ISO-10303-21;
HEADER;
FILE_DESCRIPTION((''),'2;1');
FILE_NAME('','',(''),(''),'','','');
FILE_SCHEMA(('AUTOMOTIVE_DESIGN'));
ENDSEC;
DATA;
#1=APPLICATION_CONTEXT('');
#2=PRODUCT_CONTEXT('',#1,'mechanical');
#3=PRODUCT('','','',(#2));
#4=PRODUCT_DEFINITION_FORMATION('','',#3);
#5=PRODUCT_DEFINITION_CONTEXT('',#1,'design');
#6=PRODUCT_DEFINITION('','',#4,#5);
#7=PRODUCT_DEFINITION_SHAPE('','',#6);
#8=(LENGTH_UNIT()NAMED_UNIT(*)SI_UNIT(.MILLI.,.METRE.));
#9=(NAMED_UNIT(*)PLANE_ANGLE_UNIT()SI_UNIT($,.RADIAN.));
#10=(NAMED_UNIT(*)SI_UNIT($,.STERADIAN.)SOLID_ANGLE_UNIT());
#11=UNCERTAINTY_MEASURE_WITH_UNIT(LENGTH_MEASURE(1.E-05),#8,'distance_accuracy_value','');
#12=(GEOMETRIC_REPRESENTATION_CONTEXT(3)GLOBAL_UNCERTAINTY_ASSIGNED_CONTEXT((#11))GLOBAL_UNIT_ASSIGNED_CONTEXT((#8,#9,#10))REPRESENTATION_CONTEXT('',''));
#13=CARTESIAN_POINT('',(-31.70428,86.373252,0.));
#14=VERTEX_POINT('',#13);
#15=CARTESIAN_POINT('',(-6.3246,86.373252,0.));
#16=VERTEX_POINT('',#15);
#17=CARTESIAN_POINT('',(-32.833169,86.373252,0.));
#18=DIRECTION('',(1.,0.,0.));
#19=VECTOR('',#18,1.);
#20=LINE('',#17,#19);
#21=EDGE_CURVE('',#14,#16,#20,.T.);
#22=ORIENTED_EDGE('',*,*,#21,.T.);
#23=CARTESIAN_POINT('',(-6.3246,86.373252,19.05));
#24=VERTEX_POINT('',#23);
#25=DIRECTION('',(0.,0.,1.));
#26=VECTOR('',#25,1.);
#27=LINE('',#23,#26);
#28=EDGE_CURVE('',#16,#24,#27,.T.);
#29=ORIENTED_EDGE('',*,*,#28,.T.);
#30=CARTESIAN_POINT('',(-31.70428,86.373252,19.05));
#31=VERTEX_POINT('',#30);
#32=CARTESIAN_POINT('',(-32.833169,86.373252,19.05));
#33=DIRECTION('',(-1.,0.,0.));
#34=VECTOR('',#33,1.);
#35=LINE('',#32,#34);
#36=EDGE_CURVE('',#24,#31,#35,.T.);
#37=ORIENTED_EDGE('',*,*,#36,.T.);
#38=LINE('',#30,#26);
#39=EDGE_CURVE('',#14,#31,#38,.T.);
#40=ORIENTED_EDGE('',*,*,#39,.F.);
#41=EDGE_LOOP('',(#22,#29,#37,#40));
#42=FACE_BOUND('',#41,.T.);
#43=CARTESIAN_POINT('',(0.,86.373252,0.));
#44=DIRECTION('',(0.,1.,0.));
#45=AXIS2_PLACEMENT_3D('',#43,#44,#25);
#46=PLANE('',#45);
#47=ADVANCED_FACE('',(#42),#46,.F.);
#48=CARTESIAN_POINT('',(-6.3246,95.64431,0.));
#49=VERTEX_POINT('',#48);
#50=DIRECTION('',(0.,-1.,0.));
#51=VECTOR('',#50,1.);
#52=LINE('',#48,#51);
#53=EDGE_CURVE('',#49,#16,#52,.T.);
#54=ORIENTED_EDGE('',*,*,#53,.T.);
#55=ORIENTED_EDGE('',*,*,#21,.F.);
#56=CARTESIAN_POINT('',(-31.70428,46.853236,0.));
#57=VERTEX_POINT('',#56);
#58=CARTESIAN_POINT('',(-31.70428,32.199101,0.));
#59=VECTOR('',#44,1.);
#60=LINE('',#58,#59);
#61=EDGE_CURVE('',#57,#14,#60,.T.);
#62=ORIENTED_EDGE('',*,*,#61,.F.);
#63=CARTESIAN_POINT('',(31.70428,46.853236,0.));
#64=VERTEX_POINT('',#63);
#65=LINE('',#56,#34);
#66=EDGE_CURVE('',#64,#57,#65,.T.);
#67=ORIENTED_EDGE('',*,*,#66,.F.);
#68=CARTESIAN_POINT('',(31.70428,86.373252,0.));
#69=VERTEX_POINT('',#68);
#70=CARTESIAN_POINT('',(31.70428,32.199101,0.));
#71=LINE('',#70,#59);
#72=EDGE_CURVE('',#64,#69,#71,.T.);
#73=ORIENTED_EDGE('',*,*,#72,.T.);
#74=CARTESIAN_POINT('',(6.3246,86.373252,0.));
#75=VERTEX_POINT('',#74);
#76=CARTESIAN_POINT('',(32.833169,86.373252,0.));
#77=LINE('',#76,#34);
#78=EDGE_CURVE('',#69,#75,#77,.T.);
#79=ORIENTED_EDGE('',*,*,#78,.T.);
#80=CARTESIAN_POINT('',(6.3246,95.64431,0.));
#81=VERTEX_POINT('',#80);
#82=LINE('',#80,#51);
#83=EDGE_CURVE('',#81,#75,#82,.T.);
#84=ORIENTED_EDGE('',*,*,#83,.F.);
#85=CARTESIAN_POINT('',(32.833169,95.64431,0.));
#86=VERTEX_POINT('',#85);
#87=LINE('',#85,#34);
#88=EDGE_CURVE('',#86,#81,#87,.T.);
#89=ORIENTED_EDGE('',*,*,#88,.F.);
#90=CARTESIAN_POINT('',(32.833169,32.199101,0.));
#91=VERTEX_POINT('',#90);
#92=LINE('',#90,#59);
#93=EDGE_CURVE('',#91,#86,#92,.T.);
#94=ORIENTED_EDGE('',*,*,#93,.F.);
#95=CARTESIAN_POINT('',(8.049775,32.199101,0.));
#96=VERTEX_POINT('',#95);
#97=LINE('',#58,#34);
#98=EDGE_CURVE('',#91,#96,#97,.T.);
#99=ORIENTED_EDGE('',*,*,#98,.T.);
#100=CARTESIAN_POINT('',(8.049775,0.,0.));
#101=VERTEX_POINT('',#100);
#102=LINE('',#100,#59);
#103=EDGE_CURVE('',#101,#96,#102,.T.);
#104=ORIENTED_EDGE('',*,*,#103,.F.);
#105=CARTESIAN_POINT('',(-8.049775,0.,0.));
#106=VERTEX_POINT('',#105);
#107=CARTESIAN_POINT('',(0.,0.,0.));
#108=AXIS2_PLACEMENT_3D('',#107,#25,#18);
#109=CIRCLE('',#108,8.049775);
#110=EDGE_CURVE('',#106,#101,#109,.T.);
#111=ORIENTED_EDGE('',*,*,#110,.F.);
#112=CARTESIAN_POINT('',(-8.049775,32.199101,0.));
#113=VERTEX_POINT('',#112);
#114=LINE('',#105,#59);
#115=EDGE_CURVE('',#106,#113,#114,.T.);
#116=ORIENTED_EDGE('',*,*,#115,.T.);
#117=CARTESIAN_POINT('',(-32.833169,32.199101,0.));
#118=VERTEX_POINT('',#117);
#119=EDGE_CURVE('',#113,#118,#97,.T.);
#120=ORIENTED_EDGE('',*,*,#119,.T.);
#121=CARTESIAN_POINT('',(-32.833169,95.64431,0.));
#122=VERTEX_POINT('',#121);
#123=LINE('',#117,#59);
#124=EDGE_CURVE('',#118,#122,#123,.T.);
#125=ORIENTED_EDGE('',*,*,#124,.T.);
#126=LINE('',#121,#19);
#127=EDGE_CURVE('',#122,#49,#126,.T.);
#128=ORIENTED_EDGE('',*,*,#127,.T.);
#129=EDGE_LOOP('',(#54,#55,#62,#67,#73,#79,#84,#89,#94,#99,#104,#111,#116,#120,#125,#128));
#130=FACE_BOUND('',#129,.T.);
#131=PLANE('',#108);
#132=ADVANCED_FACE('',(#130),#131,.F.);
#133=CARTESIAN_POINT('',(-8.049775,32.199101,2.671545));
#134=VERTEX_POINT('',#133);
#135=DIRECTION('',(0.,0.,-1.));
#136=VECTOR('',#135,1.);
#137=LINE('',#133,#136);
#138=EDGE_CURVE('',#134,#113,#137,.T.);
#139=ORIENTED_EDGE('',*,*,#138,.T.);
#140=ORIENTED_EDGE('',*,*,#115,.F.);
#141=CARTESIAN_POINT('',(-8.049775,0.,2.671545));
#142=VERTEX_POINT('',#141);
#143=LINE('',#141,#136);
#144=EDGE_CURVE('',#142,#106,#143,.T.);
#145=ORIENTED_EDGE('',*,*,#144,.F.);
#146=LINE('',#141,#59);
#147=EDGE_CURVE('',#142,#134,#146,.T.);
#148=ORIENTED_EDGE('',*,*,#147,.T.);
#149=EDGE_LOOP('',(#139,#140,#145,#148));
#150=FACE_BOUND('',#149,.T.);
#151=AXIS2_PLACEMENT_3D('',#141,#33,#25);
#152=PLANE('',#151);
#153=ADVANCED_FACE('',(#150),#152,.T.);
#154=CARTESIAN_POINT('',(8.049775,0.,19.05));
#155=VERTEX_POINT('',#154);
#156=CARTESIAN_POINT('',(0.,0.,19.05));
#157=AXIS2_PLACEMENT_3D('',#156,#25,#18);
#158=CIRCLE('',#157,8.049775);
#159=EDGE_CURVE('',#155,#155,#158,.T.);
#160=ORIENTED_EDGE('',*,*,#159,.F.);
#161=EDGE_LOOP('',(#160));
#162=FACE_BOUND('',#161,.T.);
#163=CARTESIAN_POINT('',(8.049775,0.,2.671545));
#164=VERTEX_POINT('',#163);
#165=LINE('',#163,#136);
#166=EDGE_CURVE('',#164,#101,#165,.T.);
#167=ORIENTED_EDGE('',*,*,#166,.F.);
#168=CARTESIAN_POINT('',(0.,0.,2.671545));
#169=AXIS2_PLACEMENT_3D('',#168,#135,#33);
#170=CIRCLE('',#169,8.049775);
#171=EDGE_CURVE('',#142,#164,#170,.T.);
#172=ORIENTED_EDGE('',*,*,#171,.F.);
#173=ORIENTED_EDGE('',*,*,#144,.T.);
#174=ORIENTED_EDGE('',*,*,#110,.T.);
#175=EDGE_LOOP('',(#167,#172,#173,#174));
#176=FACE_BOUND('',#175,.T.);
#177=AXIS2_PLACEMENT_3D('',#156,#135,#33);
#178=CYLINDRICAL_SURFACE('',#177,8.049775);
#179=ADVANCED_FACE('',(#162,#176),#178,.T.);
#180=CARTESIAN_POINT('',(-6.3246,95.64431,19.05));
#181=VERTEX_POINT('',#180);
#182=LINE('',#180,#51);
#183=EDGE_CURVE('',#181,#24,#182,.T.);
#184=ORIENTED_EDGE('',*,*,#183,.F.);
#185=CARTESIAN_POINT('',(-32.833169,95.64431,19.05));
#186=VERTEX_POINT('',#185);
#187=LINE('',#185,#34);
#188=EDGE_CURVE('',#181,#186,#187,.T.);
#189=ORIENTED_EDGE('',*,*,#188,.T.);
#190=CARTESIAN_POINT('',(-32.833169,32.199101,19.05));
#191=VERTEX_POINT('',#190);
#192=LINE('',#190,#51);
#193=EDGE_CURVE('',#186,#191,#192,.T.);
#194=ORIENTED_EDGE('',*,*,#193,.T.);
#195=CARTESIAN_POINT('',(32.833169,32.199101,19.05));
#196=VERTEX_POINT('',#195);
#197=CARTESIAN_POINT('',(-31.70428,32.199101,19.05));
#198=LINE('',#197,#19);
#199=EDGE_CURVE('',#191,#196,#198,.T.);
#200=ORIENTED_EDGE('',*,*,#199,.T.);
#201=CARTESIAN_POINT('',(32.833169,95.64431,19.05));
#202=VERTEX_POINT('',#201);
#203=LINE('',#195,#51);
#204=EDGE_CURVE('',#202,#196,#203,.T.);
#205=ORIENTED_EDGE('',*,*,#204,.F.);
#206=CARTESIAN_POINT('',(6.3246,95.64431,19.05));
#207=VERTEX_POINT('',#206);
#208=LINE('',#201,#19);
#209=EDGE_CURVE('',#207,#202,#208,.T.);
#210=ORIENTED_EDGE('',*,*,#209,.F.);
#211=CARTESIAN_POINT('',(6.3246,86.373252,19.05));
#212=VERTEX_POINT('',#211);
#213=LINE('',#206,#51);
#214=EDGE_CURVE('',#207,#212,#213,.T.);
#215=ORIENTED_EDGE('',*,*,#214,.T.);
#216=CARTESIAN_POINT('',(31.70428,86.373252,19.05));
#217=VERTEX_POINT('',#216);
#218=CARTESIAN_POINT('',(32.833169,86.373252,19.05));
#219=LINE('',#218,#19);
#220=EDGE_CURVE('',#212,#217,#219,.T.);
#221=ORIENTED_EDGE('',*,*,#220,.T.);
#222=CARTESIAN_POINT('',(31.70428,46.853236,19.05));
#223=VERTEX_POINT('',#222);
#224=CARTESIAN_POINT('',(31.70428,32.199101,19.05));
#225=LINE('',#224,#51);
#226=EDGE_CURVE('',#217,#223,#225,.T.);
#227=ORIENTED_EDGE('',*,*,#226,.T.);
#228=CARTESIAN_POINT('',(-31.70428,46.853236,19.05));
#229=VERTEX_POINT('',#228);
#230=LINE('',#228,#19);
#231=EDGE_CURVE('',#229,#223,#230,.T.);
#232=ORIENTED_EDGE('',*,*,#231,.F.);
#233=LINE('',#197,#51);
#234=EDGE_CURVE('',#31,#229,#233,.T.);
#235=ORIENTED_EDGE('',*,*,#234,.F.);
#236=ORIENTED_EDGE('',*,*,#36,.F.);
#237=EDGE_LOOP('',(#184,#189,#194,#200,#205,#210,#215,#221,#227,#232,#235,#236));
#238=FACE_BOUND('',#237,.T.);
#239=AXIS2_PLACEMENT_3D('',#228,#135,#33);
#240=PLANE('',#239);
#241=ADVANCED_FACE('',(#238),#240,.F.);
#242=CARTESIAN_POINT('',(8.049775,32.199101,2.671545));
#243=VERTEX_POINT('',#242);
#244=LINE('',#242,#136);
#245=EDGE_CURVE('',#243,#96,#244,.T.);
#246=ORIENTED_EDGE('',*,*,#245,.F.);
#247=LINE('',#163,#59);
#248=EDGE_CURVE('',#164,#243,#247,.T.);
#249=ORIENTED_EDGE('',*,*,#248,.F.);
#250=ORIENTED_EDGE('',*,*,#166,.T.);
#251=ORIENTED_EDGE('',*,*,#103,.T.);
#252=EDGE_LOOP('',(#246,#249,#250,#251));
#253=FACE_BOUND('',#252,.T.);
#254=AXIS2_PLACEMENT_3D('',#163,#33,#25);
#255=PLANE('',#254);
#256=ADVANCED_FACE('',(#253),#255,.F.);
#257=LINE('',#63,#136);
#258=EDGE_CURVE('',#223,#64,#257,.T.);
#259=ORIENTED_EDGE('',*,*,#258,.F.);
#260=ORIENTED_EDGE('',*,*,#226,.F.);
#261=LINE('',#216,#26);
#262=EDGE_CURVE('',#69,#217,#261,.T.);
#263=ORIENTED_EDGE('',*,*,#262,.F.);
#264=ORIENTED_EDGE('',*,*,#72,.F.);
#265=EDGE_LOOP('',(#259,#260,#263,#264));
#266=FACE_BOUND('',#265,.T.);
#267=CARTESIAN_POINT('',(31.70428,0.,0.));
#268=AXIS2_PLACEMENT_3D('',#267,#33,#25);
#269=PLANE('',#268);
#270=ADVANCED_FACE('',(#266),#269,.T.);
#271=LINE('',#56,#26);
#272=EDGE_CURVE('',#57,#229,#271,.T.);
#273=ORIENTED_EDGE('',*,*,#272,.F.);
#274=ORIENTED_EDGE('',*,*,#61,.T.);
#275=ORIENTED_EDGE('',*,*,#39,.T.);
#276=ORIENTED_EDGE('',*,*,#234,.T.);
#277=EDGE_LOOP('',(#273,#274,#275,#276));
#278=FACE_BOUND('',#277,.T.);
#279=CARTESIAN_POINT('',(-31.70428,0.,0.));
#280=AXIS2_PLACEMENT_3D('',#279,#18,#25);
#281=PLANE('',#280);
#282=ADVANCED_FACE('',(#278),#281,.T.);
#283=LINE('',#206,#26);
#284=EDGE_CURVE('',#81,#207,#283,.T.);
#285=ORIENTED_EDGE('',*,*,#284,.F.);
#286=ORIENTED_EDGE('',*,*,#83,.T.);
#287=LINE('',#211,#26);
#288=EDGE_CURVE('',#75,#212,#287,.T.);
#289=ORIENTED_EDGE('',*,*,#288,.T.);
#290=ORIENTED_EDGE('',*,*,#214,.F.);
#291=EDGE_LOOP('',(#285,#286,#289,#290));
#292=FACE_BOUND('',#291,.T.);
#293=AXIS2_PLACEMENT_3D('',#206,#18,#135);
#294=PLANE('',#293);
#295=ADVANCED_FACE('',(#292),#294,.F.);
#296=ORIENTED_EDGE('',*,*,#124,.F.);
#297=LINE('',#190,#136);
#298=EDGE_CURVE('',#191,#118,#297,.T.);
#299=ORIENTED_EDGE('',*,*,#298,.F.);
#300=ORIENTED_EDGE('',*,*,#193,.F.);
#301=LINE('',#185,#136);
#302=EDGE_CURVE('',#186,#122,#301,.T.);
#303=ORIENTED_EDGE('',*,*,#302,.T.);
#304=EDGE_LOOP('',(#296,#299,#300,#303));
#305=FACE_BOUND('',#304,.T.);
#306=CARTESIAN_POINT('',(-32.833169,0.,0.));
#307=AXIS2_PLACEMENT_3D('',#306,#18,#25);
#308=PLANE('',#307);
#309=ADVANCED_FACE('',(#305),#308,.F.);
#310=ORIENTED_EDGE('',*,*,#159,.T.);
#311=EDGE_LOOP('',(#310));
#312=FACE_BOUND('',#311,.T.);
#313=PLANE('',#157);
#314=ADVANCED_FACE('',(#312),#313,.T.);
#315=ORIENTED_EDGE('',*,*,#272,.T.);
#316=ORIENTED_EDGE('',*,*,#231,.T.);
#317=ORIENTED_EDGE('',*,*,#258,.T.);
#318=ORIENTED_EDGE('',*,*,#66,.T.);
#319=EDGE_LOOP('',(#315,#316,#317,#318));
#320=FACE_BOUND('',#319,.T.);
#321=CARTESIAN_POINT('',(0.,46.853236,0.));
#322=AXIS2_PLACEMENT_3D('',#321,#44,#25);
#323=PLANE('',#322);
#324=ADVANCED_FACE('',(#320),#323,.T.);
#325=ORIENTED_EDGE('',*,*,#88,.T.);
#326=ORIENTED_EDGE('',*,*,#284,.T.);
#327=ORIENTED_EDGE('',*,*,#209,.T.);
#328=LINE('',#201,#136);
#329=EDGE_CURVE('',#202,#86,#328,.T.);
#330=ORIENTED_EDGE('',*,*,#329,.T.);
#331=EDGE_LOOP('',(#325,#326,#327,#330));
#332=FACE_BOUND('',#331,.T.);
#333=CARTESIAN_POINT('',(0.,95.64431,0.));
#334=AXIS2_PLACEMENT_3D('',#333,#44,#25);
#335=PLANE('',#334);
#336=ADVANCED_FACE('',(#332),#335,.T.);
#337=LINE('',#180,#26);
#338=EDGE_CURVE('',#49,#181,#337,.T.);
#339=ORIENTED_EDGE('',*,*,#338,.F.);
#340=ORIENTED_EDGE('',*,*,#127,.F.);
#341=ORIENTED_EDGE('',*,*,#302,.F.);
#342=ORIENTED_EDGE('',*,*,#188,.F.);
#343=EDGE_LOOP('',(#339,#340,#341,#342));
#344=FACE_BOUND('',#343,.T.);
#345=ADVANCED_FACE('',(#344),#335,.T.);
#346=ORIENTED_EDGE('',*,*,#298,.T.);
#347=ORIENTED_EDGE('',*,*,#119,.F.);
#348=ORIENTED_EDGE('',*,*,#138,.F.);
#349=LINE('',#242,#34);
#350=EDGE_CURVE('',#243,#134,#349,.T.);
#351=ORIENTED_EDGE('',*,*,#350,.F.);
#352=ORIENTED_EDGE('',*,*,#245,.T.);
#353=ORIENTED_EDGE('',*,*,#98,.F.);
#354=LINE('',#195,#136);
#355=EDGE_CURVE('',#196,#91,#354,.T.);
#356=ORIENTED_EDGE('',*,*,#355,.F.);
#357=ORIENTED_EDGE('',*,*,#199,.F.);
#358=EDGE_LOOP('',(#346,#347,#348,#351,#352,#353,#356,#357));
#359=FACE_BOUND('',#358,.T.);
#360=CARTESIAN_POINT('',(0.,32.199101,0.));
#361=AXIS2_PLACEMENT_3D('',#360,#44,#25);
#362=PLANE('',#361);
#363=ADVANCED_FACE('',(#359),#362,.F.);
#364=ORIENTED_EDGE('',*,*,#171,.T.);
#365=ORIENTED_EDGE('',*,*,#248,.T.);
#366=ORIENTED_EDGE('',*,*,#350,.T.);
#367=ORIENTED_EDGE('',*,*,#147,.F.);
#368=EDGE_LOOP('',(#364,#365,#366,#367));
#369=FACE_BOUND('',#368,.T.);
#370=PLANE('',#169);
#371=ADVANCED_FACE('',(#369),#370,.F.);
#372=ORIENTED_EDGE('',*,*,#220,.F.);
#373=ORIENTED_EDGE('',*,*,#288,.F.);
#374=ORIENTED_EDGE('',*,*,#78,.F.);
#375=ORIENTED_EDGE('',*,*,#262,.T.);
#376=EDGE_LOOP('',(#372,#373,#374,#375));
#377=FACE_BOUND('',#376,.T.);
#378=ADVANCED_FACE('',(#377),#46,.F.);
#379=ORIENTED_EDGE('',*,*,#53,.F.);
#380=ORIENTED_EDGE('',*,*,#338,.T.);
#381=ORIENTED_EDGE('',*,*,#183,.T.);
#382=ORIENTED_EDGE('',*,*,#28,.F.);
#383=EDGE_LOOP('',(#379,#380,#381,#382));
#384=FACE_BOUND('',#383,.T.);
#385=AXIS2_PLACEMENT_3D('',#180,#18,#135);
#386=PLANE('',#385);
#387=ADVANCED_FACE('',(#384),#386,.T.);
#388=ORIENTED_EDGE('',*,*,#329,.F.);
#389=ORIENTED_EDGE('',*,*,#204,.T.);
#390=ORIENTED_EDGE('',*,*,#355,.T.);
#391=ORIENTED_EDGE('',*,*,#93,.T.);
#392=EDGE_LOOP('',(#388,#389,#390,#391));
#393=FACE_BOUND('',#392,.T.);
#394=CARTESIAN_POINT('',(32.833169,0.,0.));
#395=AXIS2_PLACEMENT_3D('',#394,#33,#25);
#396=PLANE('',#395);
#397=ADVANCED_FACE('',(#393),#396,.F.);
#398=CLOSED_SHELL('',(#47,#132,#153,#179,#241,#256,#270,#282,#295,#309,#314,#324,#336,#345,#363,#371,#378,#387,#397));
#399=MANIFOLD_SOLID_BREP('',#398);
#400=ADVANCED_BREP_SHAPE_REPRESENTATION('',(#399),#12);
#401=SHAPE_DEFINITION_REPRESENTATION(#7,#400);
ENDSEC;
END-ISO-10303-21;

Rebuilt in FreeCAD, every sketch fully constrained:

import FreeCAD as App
import Part
import Sketcher
from FreeCAD import Vector
Q = App.Units.Quantity


def add_polygon(sketch, points):
    """Adds a closed chain of lines whose ends are joined by coincident constraints."""
    first, n = sketch.GeometryCount, len(points)
    for a, b in zip(points, points[1:] + points[:1]):
        sketch.addGeometry(Part.LineSegment(App.Vector(*a, 0), App.Vector(*b, 0)), False)
    for i in range(n):
        sketch.addConstraint(Sketcher.Constraint("Coincident", first + i, 2, first + (i + 1) % n, 1))

doc = App.newDocument("Part")
body = doc.addObject("PartDesign::Body", "Body")

# Sketch on XY plane
sketch1 = doc.addObject("Sketcher::SketchObject", "Sketch")
body.addObject(sketch1)
sketch1.AttachmentSupport = (doc.XY_Plane, [""])
sketch1.MapMode = "FlatFace"
sketch1.addGeometry(Part.Circle(Vector(0, 0, 0), Vector(0, 0, 1), 8), False)
sketch1.addConstraint([
    Sketcher.Constraint("Coincident", 0, 3, -1, 1),
    Sketcher.Constraint("Diameter", 0, 16.099551),
])
pad1 = doc.addObject("PartDesign::Pad", "Pad")
body.addObject(pad1)
pad1.Profile = sketch1
pad1.Length = Q("0.75 in")

# Sketch on XY plane
sketch2 = doc.addObject("Sketcher::SketchObject", "Sketch001")
body.addObject(sketch2)
sketch2.AttachmentSupport = (doc.XY_Plane, [""])
sketch2.MapMode = "FlatFace"
add_polygon(sketch2, [(8, 32), (8, 0), (-8, 0), (-8, 32)])  # lines 0-3
sketch2.addConstraint([
    Sketcher.Constraint("Vertical", 0),
    Sketcher.Constraint("Horizontal", 1),
    Sketcher.Constraint("Vertical", 2),
    Sketcher.Constraint("Horizontal", 3),
    Sketcher.Constraint("Symmetric", 0, 2, 1, 2, -1, 1),
    Sketcher.Constraint("DistanceY", 0, 2, 0, 1, 32.199101),
    Sketcher.Constraint("DistanceX", 1, 2, 1, 1, 16.099551),
])
pad2 = doc.addObject("PartDesign::Pad", "Pad001")
body.addObject(pad2)
pad2.Profile = sketch2
pad2.Length = 2.671545

# Sketch on XZ plane
sketch3 = doc.addObject("Sketcher::SketchObject", "Sketch002")
body.addObject(sketch3)
sketch3.AttachmentSupport = (doc.XZ_Plane, [""])
sketch3.MapMode = "FlatFace"
sketch3.AttachmentOffset = App.Placement(Vector(0, 0, -32.199101), App.Rotation())
add_polygon(sketch3, [(-32, 0), (-32, 19), (32, 19), (32, 0)])  # lines 0-3
sketch3.addConstraint([
    Sketcher.Constraint("Vertical", 0),
    Sketcher.Constraint("Horizontal", 1),
    Sketcher.Constraint("Vertical", 2),
    Sketcher.Constraint("Horizontal", 3),
    Sketcher.Constraint("Symmetric", 2, 2, 3, 2, -1, 1),
    Sketcher.Constraint("DistanceY", 0, 1, 0, 2, Q("0.75 in")),
    Sketcher.Constraint("DistanceX", 1, 1, 1, 2, Q("2.4964 in")),
])
pad3 = doc.addObject("PartDesign::Pad", "Pad002")
body.addObject(pad3)
pad3.Profile = sketch3
pad3.Length = 14.654134
pad3.Reversed = True

# Sketch on YZ plane
sketch4 = doc.addObject("Sketcher::SketchObject", "Sketch003")
body.addObject(sketch4)
sketch4.AttachmentSupport = (doc.YZ_Plane, [""])
sketch4.MapMode = "FlatFace"
sketch4.AttachmentOffset = App.Placement(Vector(0, 0, 1.2482 * 25.4), App.Rotation())
add_polygon(sketch4, [(86, 19), (32, 19), (32, 0), (86, 0)])  # lines 0-3
sketch4.addConstraint([
    Sketcher.Constraint("Horizontal", 0),
    Sketcher.Constraint("Vertical", 1),
    Sketcher.Constraint("Horizontal", 2),
    Sketcher.Constraint("Vertical", 3),
    Sketcher.Constraint("PointOnObject", 1, 2, -1),
    Sketcher.Constraint("DistanceY", 1, 2, 1, 1, Q("0.75 in")),
    Sketcher.Constraint("DistanceX", 0, 2, 0, 1, 54.174151),
    Sketcher.Constraint("DistanceX", -1, 1, 0, 2, 32.199101),
])
pad4 = doc.addObject("PartDesign::Pad", "Pad003")
body.addObject(pad4)
pad4.Profile = sketch4
pad4.Length = 1.128889
doc.recompute()

mirrored = doc.addObject("PartDesign::Mirrored", "Mirrored")
body.addObject(mirrored)
mirrored.Originals = [pad4]
mirrored.MirrorPlane = (doc.YZ_Plane, [""])
body.Tip = mirrored

# Sketch on XZ plane
sketch5 = doc.addObject("Sketcher::SketchObject", "Sketch004")
body.addObject(sketch5)
sketch5.AttachmentSupport = (doc.XZ_Plane, [""])
sketch5.MapMode = "FlatFace"
sketch5.AttachmentOffset = App.Placement(Vector(0, 0, -86.373252), App.Rotation())
add_polygon(sketch5, [(6, 0), (6, 19), (33, 19), (33, 0)])  # lines 0-3
sketch5.addConstraint([
    Sketcher.Constraint("Vertical", 0),
    Sketcher.Constraint("Horizontal", 1),
    Sketcher.Constraint("Vertical", 2),
    Sketcher.Constraint("Horizontal", 3),
    Sketcher.Constraint("PointOnObject", 2, 2, -1),
    Sketcher.Constraint("DistanceY", 0, 1, 0, 2, Q("0.75 in")),
    Sketcher.Constraint("DistanceX", -1, 1, 0, 2, Q("0.249 in")),
    Sketcher.Constraint("DistanceX", 1, 1, 1, 2, 26.508569),
])
pad5 = doc.addObject("PartDesign::Pad", "Pad004")
body.addObject(pad5)
pad5.Profile = sketch5
pad5.Length = 9.271058
pad5.Reversed = True
doc.recompute()

mirrored2 = doc.addObject("PartDesign::Mirrored", "Mirrored001")
body.addObject(mirrored2)
mirrored2.Originals = [pad4, pad5]
mirrored2.MirrorPlane = (doc.YZ_Plane, [""])
body.Tip = mirrored2

doc.recompute()
